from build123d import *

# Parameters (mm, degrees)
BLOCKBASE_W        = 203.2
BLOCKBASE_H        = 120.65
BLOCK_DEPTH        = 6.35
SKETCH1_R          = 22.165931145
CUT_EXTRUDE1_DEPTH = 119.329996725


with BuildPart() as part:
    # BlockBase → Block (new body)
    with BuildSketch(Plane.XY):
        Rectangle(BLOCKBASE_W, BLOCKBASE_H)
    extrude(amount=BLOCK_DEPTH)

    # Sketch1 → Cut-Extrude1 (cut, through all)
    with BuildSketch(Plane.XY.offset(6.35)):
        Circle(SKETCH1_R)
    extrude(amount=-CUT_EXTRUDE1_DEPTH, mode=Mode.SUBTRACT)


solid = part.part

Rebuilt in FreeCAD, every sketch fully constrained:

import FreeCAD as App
import Part
import Sketcher

V = App.Vector
Q = App.Units.Quantity

doc = App.newDocument("Part")
body = doc.addObject("PartDesign::Body", "Body")

# Sketch on XY plane
sketch1 = body.newObject("Sketcher::SketchObject", "Sketch")
sketch1.AttachmentSupport = (doc.getObject("XY_Plane"), [""])
sketch1.MapMode = "FlatFace"
sketch1.addGeometry([
    Part.LineSegment(V(-102, 60, 0), V(-102, -60, 0)),
    Part.LineSegment(V(-102, -60, 0), V(102, -60, 0)),
    Part.LineSegment(V(102, -60, 0), V(102, 60, 0)),
    Part.LineSegment(V(102, 60, 0), V(-102, 60, 0)),
], False)
sketch1.addConstraint([
    Sketcher.Constraint("Coincident", 0, 2, 1, 1),
    Sketcher.Constraint("Coincident", 1, 2, 2, 1),
    Sketcher.Constraint("Coincident", 2, 2, 3, 1),
    Sketcher.Constraint("Coincident", 3, 2, 0, 1),
    Sketcher.Constraint("Vertical", 0),
    Sketcher.Constraint("Horizontal", 1),
    Sketcher.Constraint("Vertical", 2),
    Sketcher.Constraint("Horizontal", 3),
    Sketcher.Constraint("Symmetric", 0, 2, 2, 2, -1, 1),
    Sketcher.Constraint("DistanceX", 1, 1, 1, 2, Q("8 in")),
    Sketcher.Constraint("DistanceY", 0, 2, 0, 1, Q("4.75 in")),
])
pad1 = body.newObject("PartDesign::Pad", "Pad")
pad1.Profile = sketch1
pad1.Length = Q("0.25 in")

# Sketch on XY plane
sketch2 = body.newObject("Sketcher::SketchObject", "Sketch001")
sketch2.AttachmentSupport = (doc.getObject("XY_Plane"), [""])
sketch2.MapMode = "FlatFace"
sketch2.AttachmentOffset = App.Placement(V(0, 0, 0.25 * 25.4), App.Rotation())
sketch2.addGeometry(Part.Circle(V(0, 0, 0), V(0, 0, 1), 22), False)
sketch2.addConstraint([
    Sketcher.Constraint("Coincident", 0, 3, -1, 1),
    Sketcher.Constraint("Diameter", 0, 44.331862),
])
pocket1 = body.newObject("PartDesign::Pocket", "Pocket")
pocket1.Profile = sketch2
pocket1.Type = "ThroughAll"

doc.recompute()
